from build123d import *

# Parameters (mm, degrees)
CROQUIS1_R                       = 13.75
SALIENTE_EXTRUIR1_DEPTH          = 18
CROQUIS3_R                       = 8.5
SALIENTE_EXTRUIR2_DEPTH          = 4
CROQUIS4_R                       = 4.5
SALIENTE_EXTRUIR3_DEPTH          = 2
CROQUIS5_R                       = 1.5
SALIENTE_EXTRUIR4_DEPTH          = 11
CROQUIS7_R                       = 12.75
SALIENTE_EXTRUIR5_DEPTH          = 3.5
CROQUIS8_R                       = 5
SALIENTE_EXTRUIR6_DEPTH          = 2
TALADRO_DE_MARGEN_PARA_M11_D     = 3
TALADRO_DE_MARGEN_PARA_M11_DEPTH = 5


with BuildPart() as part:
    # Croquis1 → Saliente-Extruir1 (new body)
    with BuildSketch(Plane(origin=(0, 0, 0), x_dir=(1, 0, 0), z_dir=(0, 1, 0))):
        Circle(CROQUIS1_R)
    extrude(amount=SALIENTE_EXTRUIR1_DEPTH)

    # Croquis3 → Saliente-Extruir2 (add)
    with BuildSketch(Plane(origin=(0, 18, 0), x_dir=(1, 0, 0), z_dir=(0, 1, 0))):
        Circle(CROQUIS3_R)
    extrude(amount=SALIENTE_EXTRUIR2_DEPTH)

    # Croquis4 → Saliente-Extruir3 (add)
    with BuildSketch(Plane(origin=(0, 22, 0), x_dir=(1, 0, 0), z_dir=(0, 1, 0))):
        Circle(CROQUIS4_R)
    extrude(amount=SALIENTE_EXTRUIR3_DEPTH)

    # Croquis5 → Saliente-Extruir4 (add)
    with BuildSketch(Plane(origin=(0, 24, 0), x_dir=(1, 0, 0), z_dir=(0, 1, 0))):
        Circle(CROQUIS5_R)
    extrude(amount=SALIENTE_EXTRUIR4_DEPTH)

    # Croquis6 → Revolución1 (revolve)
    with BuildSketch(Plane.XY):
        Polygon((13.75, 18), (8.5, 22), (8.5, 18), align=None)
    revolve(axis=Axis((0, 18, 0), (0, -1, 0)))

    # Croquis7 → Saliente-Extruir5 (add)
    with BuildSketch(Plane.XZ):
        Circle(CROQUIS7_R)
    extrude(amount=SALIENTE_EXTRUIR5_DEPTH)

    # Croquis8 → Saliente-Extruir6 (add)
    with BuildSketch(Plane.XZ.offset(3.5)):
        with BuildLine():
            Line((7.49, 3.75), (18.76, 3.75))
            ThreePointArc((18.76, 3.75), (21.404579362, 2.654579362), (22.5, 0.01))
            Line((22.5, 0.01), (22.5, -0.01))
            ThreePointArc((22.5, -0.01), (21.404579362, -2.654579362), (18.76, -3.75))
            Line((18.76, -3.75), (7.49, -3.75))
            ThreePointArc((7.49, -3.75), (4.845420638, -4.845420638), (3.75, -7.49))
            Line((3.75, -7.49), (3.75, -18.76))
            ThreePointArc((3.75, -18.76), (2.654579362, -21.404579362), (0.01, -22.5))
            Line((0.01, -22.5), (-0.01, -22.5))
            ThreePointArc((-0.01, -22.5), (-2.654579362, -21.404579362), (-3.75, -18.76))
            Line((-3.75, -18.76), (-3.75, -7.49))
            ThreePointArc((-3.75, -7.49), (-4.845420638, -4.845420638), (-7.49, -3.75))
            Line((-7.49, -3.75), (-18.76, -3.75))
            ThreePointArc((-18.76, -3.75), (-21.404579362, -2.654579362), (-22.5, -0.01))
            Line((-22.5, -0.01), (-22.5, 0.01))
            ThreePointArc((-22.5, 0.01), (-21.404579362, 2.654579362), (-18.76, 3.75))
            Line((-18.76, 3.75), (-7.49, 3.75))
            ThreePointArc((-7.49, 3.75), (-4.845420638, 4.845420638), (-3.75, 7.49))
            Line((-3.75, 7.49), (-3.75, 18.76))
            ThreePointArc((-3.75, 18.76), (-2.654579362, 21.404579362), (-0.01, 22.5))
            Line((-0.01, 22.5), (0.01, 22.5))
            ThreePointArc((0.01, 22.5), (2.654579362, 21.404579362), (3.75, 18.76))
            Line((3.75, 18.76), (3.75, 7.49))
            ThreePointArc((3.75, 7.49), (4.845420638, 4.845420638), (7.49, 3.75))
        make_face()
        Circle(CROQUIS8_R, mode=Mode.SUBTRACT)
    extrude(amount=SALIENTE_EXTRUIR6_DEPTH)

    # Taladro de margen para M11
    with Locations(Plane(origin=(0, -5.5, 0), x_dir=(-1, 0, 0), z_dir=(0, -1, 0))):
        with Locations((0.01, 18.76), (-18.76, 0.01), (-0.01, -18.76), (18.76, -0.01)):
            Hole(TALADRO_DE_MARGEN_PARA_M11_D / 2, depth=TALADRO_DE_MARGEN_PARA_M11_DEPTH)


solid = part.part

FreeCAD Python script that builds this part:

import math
import FreeCAD as App
import Part
import Sketcher
from FreeCAD import Vector

doc = App.newDocument("Part")
params = doc.addObject("Spreadsheet::Sheet", "Params")
for row, (alias, value) in enumerate([
    ("sketch1_diameter", "27.5 mm"),
    ("pad1_length", "18 mm"),
    ("sketch2_diameter", "17 mm"),
    ("pad2_length", "4 mm"),
    ("sketch3_diameter", "9 mm"),
    ("pad3_length", "2 mm"),
    ("sketch4_diameter", "3 mm"),
    ("pad4_length", "11 mm"),
    ("sketch5_height", "4 mm"),
    ("sketch5_width", "5.25 mm"),
    ("revolution_angle", "360 deg"),
    ("sketch6_diameter", "25.5 mm"),
    ("pad5_length", "3.5 mm"),
    ("sketch7_diameter", "10 mm"),
    ("sketch7_radius", "3.74 mm"),
    ("sketch7_width", "11.27 mm"),
    ("sketch7_width2", "0.02 mm"),
    ("pad6_length", "2 mm"),
    ("sketch8_diameter", "3 mm"),
    ("hole_diameter", "3 mm"),
    ("hole_depth", "5 mm"),
], start=1):
    params.set(f"A{row}", alias)
    params.set(f"B{row}", "=" + value)
    params.setAlias(f"B{row}", alias)

body = doc.addObject("PartDesign::Body", "Body")

# Sketch on XZ plane
sketch1 = body.newObject("Sketcher::SketchObject", "Sketch")
sketch1.AttachmentSupport = (doc.getObject("XZ_Plane"), [""])
sketch1.MapMode = "FlatFace"
sketch1.addGeometry(Part.Circle(Vector(0, 0, 0), Vector(0, 0, 1), 14), False)
sketch1.addConstraint(Sketcher.Constraint("Coincident", 0, 3, -1, 1))
sketch1.addConstraint(Sketcher.Constraint("Diameter", 0, 27.5))
sketch1.setExpression("Constraints[1]", "Params.sketch1_diameter")
pad1 = body.newObject("PartDesign::Pad", "Pad")
pad1.Profile = sketch1
pad1.setExpression("Length", "Params.pad1_length")
pad1.Reversed = True

# Sketch on XZ plane
sketch2 = body.newObject("Sketcher::SketchObject", "Sketch001")
sketch2.AttachmentSupport = (doc.getObject("XZ_Plane"), [""])
sketch2.MapMode = "FlatFace"
sketch2.AttachmentOffset = App.Placement(Vector(0, 0, -18), App.Rotation())
sketch2.addGeometry(Part.Circle(Vector(0, 0, 0), Vector(0, 0, 1), 8), False)
sketch2.addConstraint(Sketcher.Constraint("Coincident", 0, 3, -1, 1))
sketch2.addConstraint(Sketcher.Constraint("Diameter", 0, 17.0))
sketch2.setExpression("Constraints[1]", "Params.sketch2_diameter")
pad2 = body.newObject("PartDesign::Pad", "Pad001")
pad2.Profile = sketch2
pad2.setExpression("Length", "Params.pad2_length")
pad2.Reversed = True

# Sketch on XZ plane
sketch3 = body.newObject("Sketcher::SketchObject", "Sketch002")
sketch3.AttachmentSupport = (doc.getObject("XZ_Plane"), [""])
sketch3.MapMode = "FlatFace"
sketch3.AttachmentOffset = App.Placement(Vector(0, 0, -22), App.Rotation())
sketch3.addGeometry(Part.Circle(Vector(0, 0, 0), Vector(0, 0, 1), 4.5), False)
sketch3.addConstraint(Sketcher.Constraint("Coincident", 0, 3, -1, 1))
sketch3.addConstraint(Sketcher.Constraint("Diameter", 0, 9.0))
sketch3.setExpression("Constraints[1]", "Params.sketch3_diameter")
pad3 = body.newObject("PartDesign::Pad", "Pad002")
pad3.Profile = sketch3
pad3.setExpression("Length", "Params.pad3_length")
pad3.Reversed = True

# Sketch on XZ plane
sketch4 = body.newObject("Sketcher::SketchObject", "Sketch003")
sketch4.AttachmentSupport = (doc.getObject("XZ_Plane"), [""])
sketch4.MapMode = "FlatFace"
sketch4.AttachmentOffset = App.Placement(Vector(0, 0, -24), App.Rotation())
sketch4.addGeometry(Part.Circle(Vector(0, 0, 0), Vector(0, 0, 1), 1.5), False)
sketch4.addConstraint(Sketcher.Constraint("Coincident", 0, 3, -1, 1))
sketch4.addConstraint(Sketcher.Constraint("Diameter", 0, 3.0))
sketch4.setExpression("Constraints[1]", "Params.sketch4_diameter")
pad4 = body.newObject("PartDesign::Pad", "Pad003")
pad4.Profile = sketch4
pad4.setExpression("Length", "Params.pad4_length")
pad4.Reversed = True

# Sketch on XY plane
sketch5 = body.newObject("Sketcher::SketchObject", "Sketch004")
sketch5.AttachmentSupport = (doc.getObject("XY_Plane"), [""])
sketch5.MapMode = "FlatFace"
sketch5.addGeometry(Part.LineSegment(Vector(13.8, 18, 0), Vector(8.5, 22, 0)), False)
sketch5.addGeometry(Part.LineSegment(Vector(8.5, 22, 0), Vector(8.5, 18, 0)), False)
sketch5.addGeometry(Part.LineSegment(Vector(8.5, 18, 0), Vector(13.8, 18, 0)), False)
sketch5.addConstraint(Sketcher.Constraint("Coincident", 0, 2, 1, 1))
sketch5.addConstraint(Sketcher.Constraint("Coincident", 1, 2, 2, 1))
sketch5.addConstraint(Sketcher.Constraint("Coincident", 2, 2, 0, 1))
sketch5.addConstraint(Sketcher.Constraint("Vertical", 1))
sketch5.addConstraint(Sketcher.Constraint("Horizontal", 2))
sketch5.addConstraint(Sketcher.Constraint("DistanceY", 1, 2, 1, 1, 4.0))
sketch5.addConstraint(Sketcher.Constraint("DistanceY", -1, 1, 0, 2, 22.0))
sketch5.addConstraint(Sketcher.Constraint("DistanceX", 2, 1, 2, 2, 5.25))
sketch5.addConstraint(Sketcher.Constraint("DistanceX", -1, 1, 0, 2, 8.5))
sketch5.setExpression("Constraints[5]", "Params.sketch5_height")
sketch5.setExpression("Constraints[7]", "Params.sketch5_width")
revolution = body.newObject("PartDesign::Revolution", "Revolution")
revolution.Profile = sketch5
revolution.ReferenceAxis = (sketch5, ["V_Axis"])
revolution.setExpression("Angle", "Params.revolution_angle")

# Sketch on XZ plane
sketch6 = body.newObject("Sketcher::SketchObject", "Sketch005")
sketch6.AttachmentSupport = (doc.getObject("XZ_Plane"), [""])
sketch6.MapMode = "FlatFace"
sketch6.addGeometry(Part.Circle(Vector(0, 0, 0), Vector(0, 0, 1), 13), False)
sketch6.addConstraint(Sketcher.Constraint("Coincident", 0, 3, -1, 1))
sketch6.addConstraint(Sketcher.Constraint("Diameter", 0, 25.5))
sketch6.setExpression("Constraints[1]", "Params.sketch6_diameter")
pad5 = body.newObject("PartDesign::Pad", "Pad004")
pad5.Profile = sketch6
pad5.setExpression("Length", "Params.pad5_length")

# Sketch on XZ plane
sketch7 = body.newObject("Sketcher::SketchObject", "Sketch006")
sketch7.AttachmentSupport = (doc.getObject("XZ_Plane"), [""])
sketch7.MapMode = "FlatFace"
sketch7.AttachmentOffset = App.Placement(Vector(0, 0, 3.5), App.Rotation())
sketch7.addGeometry(Part.LineSegment(Vector(18.76, 3.75, 0), Vector(7.49, 3.75, 0)), False)
sketch7.addGeometry(Part.ArcOfCircle(Part.Circle(Vector(7.49, 7.49, 0), Vector(0, 0, 1), 3.74), math.radians(180), math.radians(270)), False)
sketch7.addGeometry(Part.LineSegment(Vector(3.75, 7.49, 0), Vector(3.75, 18.76, 0)), False)
sketch7.addGeometry(Part.ArcOfCircle(Part.Circle(Vector(0.01, 18.76, 0), Vector(0, 0, 1), 3.74), math.radians(0), math.radians(90)), False)
sketch7.addGeometry(Part.LineSegment(Vector(0.01, 22.5, 0), Vector(-0.01, 22.5, 0)), False)
sketch7.addGeometry(Part.ArcOfCircle(Part.Circle(Vector(-0.01, 18.76, 0), Vector(0, 0, 1), 3.74), math.radians(90), math.radians(180)), False)
sketch7.addGeometry(Part.LineSegment(Vector(-3.75, 18.76, 0), Vector(-3.75, 7.49, 0)), False)
sketch7.addGeometry(Part.ArcOfCircle(Part.Circle(Vector(-7.49, 7.49, 0), Vector(0, 0, 1), 3.74), math.radians(-90), math.radians(0)), False)
sketch7.addGeometry(Part.LineSegment(Vector(-7.49, 3.75, 0), Vector(-18.76, 3.75, 0)), False)
sketch7.addGeometry(Part.ArcOfCircle(Part.Circle(Vector(-18.76, 0.01, 0), Vector(0, 0, 1), 3.74), math.radians(90), math.radians(180)), False)
sketch7.addGeometry(Part.LineSegment(Vector(-22.5, 0.01, 0), Vector(-22.5, -0.01, 0)), False)
sketch7.addGeometry(Part.ArcOfCircle(Part.Circle(Vector(-18.76, -0.01, 0), Vector(0, 0, 1), 3.74), math.radians(180), math.radians(270)), False)
sketch7.addGeometry(Part.LineSegment(Vector(-18.76, -3.75, 0), Vector(-7.49, -3.75, 0)), False)
sketch7.addGeometry(Part.ArcOfCircle(Part.Circle(Vector(-7.49, -7.49, 0), Vector(0, 0, 1), 3.74), math.radians(0), math.radians(90)), False)
sketch7.addGeometry(Part.LineSegment(Vector(-3.75, -7.49, 0), Vector(-3.75, -18.76, 0)), False)
sketch7.addGeometry(Part.ArcOfCircle(Part.Circle(Vector(-0.01, -18.76, 0), Vector(0, 0, 1), 3.74), math.radians(180), math.radians(270)), False)
sketch7.addGeometry(Part.LineSegment(Vector(-0.01, -22.5, 0), Vector(0.01, -22.5, 0)), False)
sketch7.addGeometry(Part.ArcOfCircle(Part.Circle(Vector(0.01, -18.76, 0), Vector(0, 0, 1), 3.74), math.radians(-90), math.radians(0)), False)
sketch7.addGeometry(Part.LineSegment(Vector(3.75, -18.76, 0), Vector(3.75, -7.49, 0)), False)
sketch7.addGeometry(Part.ArcOfCircle(Part.Circle(Vector(7.49, -7.49, 0), Vector(0, 0, 1), 3.74), math.radians(90), math.radians(180)), False)
sketch7.addGeometry(Part.LineSegment(Vector(7.49, -3.75, 0), Vector(18.76, -3.75, 0)), False)
sketch7.addGeometry(Part.ArcOfCircle(Part.Circle(Vector(18.76, -0.01, 0), Vector(0, 0, 1), 3.74), math.radians(-90), math.radians(0)), False)
sketch7.addGeometry(Part.LineSegment(Vector(22.5, -0.01, 0), Vector(22.5, 0.01, 0)), False)
sketch7.addGeometry(Part.ArcOfCircle(Part.Circle(Vector(18.76, 0.01, 0), Vector(0, 0, 1), 3.74), math.radians(0), math.radians(90)), False)
sketch7.addGeometry(Part.Circle(Vector(0, 0, 0), Vector(0, 0, 1), 5), False)
sketch7.addConstraint(Sketcher.Constraint("Tangent", 0, 2, 1, 2))
sketch7.addConstraint(Sketcher.Constraint("Tangent", 1, 1, 2, 1))
sketch7.addConstraint(Sketcher.Constraint("Tangent", 2, 2, 3, 1))
sketch7.addConstraint(Sketcher.Constraint("Tangent", 3, 2, 4, 1))
sketch7.addConstraint(Sketcher.Constraint("Tangent", 4, 2, 5, 1))
sketch7.addConstraint(Sketcher.Constraint("Tangent", 5, 2, 6, 1))
sketch7.addConstraint(Sketcher.Constraint("Tangent", 6, 2, 7, 2))
sketch7.addConstraint(Sketcher.Constraint("Tangent", 7, 1, 8, 1))
sketch7.addConstraint(Sketcher.Constraint("Tangent", 8, 2, 9, 1))
sketch7.addConstraint(Sketcher.Constraint("Tangent", 9, 2, 10, 1))
sketch7.addConstraint(Sketcher.Constraint("Tangent", 10, 2, 11, 1))
sketch7.addConstraint(Sketcher.Constraint("Tangent", 11, 2, 12, 1))
sketch7.addConstraint(Sketcher.Constraint("Tangent", 12, 2, 13, 2))
sketch7.addConstraint(Sketcher.Constraint("Tangent", 13, 1, 14, 1))
sketch7.addConstraint(Sketcher.Constraint("Tangent", 14, 2, 15, 1))
sketch7.addConstraint(Sketcher.Constraint("Tangent", 15, 2, 16, 1))
sketch7.addConstraint(Sketcher.Constraint("Tangent", 16, 2, 17, 1))
sketch7.addConstraint(Sketcher.Constraint("Tangent", 17, 2, 18, 1))
sketch7.addConstraint(Sketcher.Constraint("Tangent", 18, 2, 19, 2))
sketch7.addConstraint(Sketcher.Constraint("Tangent", 19, 1, 20, 1))
sketch7.addConstraint(Sketcher.Constraint("Tangent", 20, 2, 21, 1))
sketch7.addConstraint(Sketcher.Constraint("Tangent", 21, 2, 22, 1))
sketch7.addConstraint(Sketcher.Constraint("Tangent", 22, 2, 23, 1))
sketch7.addConstraint(Sketcher.Constraint("Tangent", 23, 2, 0, 1))
sketch7.addConstraint(Sketcher.Constraint("Horizontal", 0))
sketch7.addConstraint(Sketcher.Constraint("Vertical", 2))
sketch7.addConstraint(Sketcher.Constraint("Horizontal", 4))
sketch7.addConstraint(Sketcher.Constraint("Vertical", 6))
sketch7.addConstraint(Sketcher.Constraint("Horizontal", 8))
sketch7.addConstraint(Sketcher.Constraint("Vertical", 10))
sketch7.addConstraint(Sketcher.Constraint("Horizontal", 12))
sketch7.addConstraint(Sketcher.Constraint("Vertical", 14))
sketch7.addConstraint(Sketcher.Constraint("Horizontal", 16))
sketch7.addConstraint(Sketcher.Constraint("Vertical", 18))
sketch7.addConstraint(Sketcher.Constraint("Horizontal", 20))
sketch7.addConstraint(Sketcher.Constraint("Vertical", 22))
sketch7.addConstraint(Sketcher.Constraint("Coincident", 24, 3, -1, 1))
sketch7.addConstraint(Sketcher.Constraint("Equal", 1, 3))
sketch7.addConstraint(Sketcher.Constraint("Equal", 3, 5))
sketch7.addConstraint(Sketcher.Constraint("Equal", 5, 7))
sketch7.addConstraint(Sketcher.Constraint("Equal", 7, 9))
sketch7.addConstraint(Sketcher.Constraint("Equal", 9, 11))
sketch7.addConstraint(Sketcher.Constraint("Equal", 11, 13))
sketch7.addConstraint(Sketcher.Constraint("Equal", 13, 15))
sketch7.addConstraint(Sketcher.Constraint("Equal", 15, 17))
sketch7.addConstraint(Sketcher.Constraint("Equal", 17, 19))
sketch7.addConstraint(Sketcher.Constraint("Equal", 19, 21))
sketch7.addConstraint(Sketcher.Constraint("Equal", 21, 23))
sketch7.addConstraint(Sketcher.Constraint("Symmetric", 1, 3, 13, 3, -1, 1))
sketch7.addConstraint(Sketcher.Constraint("Symmetric", 5, 3, 17, 3, -1, 1))
sketch7.addConstraint(Sketcher.Constraint("Symmetric", 9, 3, 21, 3, -1, 1))
sketch7.addConstraint(Sketcher.Constraint("Symmetric", 1, 3, 7, 3, -2))
sketch7.addConstraint(Sketcher.Constraint("Equal", 20, 2))
sketch7.addConstraint(Sketcher.Constraint("Equal", 16, 10))
sketch7.addConstraint(Sketcher.Constraint("Diameter", 24, 10.0))
sketch7.addConstraint(Sketcher.Constraint("Radius", 1, 3.74))
sketch7.addConstraint(Sketcher.Constraint("DistanceX", 0, 2, 0, 1, 11.27))
sketch7.addConstraint(Sketcher.Constraint("DistanceX", 4, 2, 4, 1, 0.02))
sketch7.setExpression("Constraints[54]", "Params.sketch7_diameter")
sketch7.setExpression("Constraints[55]", "Params.sketch7_radius")
sketch7.setExpression("Constraints[56]", "Params.sketch7_width")
sketch7.setExpression("Constraints[57]", "Params.sketch7_width2")
pad6 = body.newObject("PartDesign::Pad", "Pad005")
pad6.Profile = sketch7
pad6.setExpression("Length", "Params.pad6_length")

# Sketch on XZ plane
sketch8 = body.newObject("Sketcher::SketchObject", "Sketch007")
sketch8.AttachmentSupport = (doc.getObject("XZ_Plane"), [""])
sketch8.MapMode = "FlatFace"
sketch8.AttachmentOffset = App.Placement(Vector(0, 0, 5.5), App.Rotation())
sketch8.addGeometry(Part.Circle(Vector(0, -18.8, 0), Vector(0, 0, 1), 1.5), False)
sketch8.addGeometry(Part.Circle(Vector(18.8, 0, 0), Vector(0, 0, 1), 1.5), False)
sketch8.addGeometry(Part.Circle(Vector(0, 18.8, 0), Vector(0, 0, 1), 1.5), False)
sketch8.addGeometry(Part.Circle(Vector(-18.8, 0, 0), Vector(0, 0, 1), 1.5), False)
sketch8.addConstraint(Sketcher.Constraint("Equal", 0, 1))
sketch8.addConstraint(Sketcher.Constraint("Equal", 1, 2))
sketch8.addConstraint(Sketcher.Constraint("Equal", 2, 3))
sketch8.addConstraint(Sketcher.Constraint("Symmetric", 0, 3, 2, 3, -1, 1))
sketch8.addConstraint(Sketcher.Constraint("Symmetric", 1, 3, 3, 3, -1, 1))
sketch8.addConstraint(Sketcher.Constraint("Diameter", 0, 3.0))
sketch8.addConstraint(Sketcher.Constraint("DistanceX", 0, 3, -1, 1, 0.01))
sketch8.addConstraint(Sketcher.Constraint("DistanceY", 0, 3, -1, 1, 18.76))
sketch8.addConstraint(Sketcher.Constraint("DistanceX", -1, 1, 1, 3, 18.76))
sketch8.addConstraint(Sketcher.Constraint("DistanceY", 1, 3, -1, 1, 0.01))
sketch8.setExpression("Constraints[5]", "Params.sketch8_diameter")
doc.recompute()
hole = body.newObject("PartDesign::Hole", "Hole")
hole.Profile = sketch8
hole.ThreadType = "None"
hole.setExpression("Diameter", "Params.hole_diameter")
hole.DepthType = "Dimension"
hole.setExpression("Depth", "Params.hole_depth")
hole.DrillPoint = "Flat"

doc.recompute()
